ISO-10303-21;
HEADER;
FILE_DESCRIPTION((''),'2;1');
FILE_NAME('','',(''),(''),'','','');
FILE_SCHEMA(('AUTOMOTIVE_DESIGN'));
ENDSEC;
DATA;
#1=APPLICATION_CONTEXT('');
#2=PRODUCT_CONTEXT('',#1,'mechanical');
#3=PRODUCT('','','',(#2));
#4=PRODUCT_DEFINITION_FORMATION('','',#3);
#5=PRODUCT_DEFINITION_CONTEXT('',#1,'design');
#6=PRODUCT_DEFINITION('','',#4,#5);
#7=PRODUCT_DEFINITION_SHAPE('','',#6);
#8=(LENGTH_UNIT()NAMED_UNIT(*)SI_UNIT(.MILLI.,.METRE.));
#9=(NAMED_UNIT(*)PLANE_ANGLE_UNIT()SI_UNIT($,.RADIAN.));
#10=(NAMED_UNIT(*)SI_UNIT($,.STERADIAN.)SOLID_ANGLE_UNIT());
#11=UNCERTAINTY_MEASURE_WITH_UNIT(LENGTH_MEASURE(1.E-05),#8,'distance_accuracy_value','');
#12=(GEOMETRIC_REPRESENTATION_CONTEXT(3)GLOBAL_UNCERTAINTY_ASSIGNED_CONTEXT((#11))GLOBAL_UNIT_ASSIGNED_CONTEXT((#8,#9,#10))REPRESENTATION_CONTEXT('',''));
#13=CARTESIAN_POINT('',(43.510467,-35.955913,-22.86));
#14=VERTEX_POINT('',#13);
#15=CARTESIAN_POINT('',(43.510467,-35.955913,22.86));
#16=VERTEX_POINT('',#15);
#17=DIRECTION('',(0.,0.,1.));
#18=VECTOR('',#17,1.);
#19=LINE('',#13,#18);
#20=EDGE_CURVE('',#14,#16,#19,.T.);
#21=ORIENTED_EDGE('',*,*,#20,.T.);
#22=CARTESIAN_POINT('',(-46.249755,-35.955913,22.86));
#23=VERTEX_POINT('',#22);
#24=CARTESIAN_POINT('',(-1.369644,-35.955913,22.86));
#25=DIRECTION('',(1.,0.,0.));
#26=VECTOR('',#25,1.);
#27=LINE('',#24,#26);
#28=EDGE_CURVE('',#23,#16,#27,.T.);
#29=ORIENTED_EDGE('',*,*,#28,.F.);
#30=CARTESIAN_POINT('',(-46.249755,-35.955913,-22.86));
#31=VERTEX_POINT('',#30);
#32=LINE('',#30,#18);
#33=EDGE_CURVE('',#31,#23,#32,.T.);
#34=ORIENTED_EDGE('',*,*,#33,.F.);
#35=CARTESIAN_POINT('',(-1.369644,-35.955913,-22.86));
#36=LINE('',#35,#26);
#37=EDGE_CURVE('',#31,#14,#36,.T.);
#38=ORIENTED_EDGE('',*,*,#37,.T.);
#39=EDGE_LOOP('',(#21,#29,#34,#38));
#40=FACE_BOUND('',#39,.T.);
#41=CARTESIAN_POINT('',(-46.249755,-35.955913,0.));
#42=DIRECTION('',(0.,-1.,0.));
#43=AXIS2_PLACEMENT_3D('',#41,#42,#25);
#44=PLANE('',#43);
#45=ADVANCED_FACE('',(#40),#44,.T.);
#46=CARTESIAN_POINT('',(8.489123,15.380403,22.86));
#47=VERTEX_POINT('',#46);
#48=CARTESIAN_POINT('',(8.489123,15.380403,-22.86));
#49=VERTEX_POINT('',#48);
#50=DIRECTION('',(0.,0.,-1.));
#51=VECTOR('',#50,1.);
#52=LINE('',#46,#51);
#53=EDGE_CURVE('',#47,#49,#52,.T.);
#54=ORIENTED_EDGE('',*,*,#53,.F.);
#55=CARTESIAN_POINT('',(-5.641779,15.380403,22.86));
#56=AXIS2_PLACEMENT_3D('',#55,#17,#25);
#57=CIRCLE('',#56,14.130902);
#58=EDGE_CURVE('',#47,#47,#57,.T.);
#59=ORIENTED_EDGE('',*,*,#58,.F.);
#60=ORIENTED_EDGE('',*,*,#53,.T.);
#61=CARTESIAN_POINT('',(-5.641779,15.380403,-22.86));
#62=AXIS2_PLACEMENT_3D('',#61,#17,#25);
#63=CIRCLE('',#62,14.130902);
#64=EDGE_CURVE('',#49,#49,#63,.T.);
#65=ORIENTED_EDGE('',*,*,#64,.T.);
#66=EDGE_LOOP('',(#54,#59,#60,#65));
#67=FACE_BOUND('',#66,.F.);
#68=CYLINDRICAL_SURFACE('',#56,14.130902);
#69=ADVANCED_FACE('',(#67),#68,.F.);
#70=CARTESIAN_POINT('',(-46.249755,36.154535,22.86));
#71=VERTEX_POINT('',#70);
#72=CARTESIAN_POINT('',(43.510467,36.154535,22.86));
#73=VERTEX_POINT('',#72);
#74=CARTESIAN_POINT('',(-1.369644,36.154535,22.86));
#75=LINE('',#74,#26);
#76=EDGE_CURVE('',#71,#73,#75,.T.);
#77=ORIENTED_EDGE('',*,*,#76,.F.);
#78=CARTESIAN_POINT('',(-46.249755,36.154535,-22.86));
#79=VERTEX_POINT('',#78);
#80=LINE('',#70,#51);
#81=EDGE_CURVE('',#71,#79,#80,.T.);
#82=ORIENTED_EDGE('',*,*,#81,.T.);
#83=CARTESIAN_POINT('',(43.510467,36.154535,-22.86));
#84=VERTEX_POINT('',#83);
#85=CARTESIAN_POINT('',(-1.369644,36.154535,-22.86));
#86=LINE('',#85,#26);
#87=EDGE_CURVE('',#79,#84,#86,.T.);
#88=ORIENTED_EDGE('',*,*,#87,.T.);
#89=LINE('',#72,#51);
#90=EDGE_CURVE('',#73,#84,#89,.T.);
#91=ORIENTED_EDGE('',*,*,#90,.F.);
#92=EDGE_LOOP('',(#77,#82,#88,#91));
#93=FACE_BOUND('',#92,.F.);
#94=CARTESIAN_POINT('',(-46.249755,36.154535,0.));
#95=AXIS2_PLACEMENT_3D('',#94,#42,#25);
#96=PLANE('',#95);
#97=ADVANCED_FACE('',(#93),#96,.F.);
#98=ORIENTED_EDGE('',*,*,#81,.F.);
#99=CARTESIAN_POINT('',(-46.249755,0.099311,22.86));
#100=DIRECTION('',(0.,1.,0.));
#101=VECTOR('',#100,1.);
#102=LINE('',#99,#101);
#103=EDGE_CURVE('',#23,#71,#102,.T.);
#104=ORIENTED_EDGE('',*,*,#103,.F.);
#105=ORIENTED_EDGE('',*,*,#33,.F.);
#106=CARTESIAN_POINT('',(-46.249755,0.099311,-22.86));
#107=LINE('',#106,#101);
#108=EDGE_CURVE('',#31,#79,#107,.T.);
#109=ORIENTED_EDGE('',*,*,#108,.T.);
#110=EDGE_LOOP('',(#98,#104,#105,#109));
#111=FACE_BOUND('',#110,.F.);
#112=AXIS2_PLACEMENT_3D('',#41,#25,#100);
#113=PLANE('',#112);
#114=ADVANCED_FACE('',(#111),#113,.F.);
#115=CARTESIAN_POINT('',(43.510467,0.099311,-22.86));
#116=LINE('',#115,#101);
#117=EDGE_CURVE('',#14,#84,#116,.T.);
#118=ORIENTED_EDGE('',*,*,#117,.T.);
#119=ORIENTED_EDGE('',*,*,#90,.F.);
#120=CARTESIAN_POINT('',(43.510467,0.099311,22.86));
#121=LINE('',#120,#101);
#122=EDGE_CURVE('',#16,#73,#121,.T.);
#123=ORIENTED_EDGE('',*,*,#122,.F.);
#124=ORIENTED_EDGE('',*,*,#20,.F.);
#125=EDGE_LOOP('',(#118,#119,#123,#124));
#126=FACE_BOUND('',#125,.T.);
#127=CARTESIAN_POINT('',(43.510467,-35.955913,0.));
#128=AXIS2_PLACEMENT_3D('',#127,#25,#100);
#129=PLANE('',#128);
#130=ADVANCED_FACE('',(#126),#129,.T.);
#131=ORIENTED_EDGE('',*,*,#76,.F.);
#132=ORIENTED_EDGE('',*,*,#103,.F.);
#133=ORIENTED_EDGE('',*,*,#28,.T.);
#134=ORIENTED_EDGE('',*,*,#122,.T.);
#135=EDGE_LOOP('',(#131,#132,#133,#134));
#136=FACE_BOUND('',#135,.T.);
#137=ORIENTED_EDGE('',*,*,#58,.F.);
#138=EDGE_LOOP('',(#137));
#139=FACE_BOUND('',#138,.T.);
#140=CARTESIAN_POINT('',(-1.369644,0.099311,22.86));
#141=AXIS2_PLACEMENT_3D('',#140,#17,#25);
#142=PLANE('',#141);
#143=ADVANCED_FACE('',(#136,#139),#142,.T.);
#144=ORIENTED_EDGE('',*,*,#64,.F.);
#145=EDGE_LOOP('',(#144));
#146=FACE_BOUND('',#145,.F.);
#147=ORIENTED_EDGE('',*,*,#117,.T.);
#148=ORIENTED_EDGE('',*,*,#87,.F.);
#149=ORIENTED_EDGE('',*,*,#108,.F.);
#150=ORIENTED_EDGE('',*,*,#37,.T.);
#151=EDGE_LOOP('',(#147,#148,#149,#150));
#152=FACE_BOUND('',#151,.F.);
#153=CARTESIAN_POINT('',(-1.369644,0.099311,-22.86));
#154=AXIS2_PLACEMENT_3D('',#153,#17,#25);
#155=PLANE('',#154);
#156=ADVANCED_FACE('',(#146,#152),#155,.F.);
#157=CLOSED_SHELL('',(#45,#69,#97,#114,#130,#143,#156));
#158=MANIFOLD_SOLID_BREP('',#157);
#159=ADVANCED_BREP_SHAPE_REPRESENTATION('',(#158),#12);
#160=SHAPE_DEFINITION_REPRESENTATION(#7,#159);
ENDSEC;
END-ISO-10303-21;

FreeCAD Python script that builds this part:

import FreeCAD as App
import Part
import Sketcher
from FreeCAD import Vector
Q = App.Units.Quantity


def add_polygon(sketch, points):
    """Adds a closed chain of lines whose ends are joined by coincident constraints."""
    first, n = sketch.GeometryCount, len(points)
    for a, b in zip(points, points[1:] + points[:1]):
        sketch.addGeometry(Part.LineSegment(App.Vector(*a, 0), App.Vector(*b, 0)), False)
    for i in range(n):
        sketch.addConstraint(Sketcher.Constraint("Coincident", first + i, 2, first + (i + 1) % n, 1))

doc = App.newDocument("Part")
body = doc.addObject("PartDesign::Body", "Body")

# Sketch on XY plane
sketch1 = doc.addObject("Sketcher::SketchObject", "Sketch")
body.addObject(sketch1)
sketch1.AttachmentSupport = (doc.XY_Plane, [""])
sketch1.MapMode = "FlatFace"
add_polygon(sketch1, [(-46, 36), (-46, -36), (44, -36), (44, 36)])  # lines 0-3
sketch1.addConstraint([
    Sketcher.Constraint("Vertical", 0),
    Sketcher.Constraint("Horizontal", 1),
    Sketcher.Constraint("Vertical", 2),
    Sketcher.Constraint("Horizontal", 3),
    Sketcher.Constraint("DistanceX", 1, 1, 1, 2, Q("89.760222 mm")),
    Sketcher.Constraint("DistanceY", 0, 2, 0, 1, Q("72.110448 mm")),
    Sketcher.Constraint("DistanceX", 0, 2, -1, 1, Q("46.249755 mm")),
    Sketcher.Constraint("DistanceY", 0, 2, -1, 1, Q("35.955913 mm")),
])
pad1 = doc.addObject("PartDesign::Pad", "Pad")
body.addObject(pad1)
pad1.Profile = sketch1
pad1.Length = Q("1.8 in")
pad1.Midplane = True

# Sketch on XY plane
sketch2 = doc.addObject("Sketcher::SketchObject", "Sketch001")
body.addObject(sketch2)
sketch2.AttachmentSupport = (doc.XY_Plane, [""])
sketch2.MapMode = "FlatFace"
sketch2.AttachmentOffset = App.Placement(Vector(0, 0, 0.9 * 25.4), App.Rotation())
sketch2.addGeometry(Part.Circle(Vector(-6, 15, 0), Vector(0, 0, 1), 14), False)
sketch2.addConstraint([
    Sketcher.Constraint("Diameter", 0, Q("28.261804 mm")),
    Sketcher.Constraint("DistanceX", 0, 3, -1, 1, Q("5.641779 mm")),
    Sketcher.Constraint("DistanceY", -1, 1, 0, 3, Q("15.380403 mm")),
])
pocket1 = doc.addObject("PartDesign::Pocket", "Pocket")
body.addObject(pocket1)
pocket1.Profile = sketch2
pocket1.Type = "ThroughAll"

doc.recompute()
